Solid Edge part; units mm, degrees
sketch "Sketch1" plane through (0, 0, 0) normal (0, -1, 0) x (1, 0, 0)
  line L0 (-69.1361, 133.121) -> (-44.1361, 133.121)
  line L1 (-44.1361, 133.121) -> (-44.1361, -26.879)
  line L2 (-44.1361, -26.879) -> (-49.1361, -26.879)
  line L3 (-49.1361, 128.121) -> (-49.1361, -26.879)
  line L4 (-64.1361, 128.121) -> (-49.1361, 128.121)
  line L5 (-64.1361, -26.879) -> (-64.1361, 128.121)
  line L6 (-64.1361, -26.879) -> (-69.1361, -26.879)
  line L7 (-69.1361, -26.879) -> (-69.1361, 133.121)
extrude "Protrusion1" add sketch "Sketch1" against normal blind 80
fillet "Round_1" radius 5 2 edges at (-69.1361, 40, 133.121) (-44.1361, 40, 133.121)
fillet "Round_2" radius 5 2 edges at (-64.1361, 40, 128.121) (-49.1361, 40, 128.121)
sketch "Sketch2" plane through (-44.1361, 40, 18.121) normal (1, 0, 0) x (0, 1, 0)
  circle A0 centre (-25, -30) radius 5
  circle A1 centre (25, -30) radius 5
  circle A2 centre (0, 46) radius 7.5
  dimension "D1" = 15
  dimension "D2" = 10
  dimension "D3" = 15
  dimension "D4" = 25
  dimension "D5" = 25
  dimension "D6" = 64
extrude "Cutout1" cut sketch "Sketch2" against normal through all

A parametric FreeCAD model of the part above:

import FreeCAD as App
import Part
import Sketcher


def edges_at(feature, points):
    """Names of the edges that pass closest to the given points."""
    edges = feature.Shape.Edges
    near = lambda p: min(range(len(edges)), key=lambda i: edges[i].distToShape(Part.Vertex(*p))[0])
    return sorted({f"Edge{near(p) + 1}" for p in points})


def add_polygon(sketch, points):
    """Adds a closed chain of lines whose ends are joined by coincident constraints."""
    first, n = sketch.GeometryCount, len(points)
    for a, b in zip(points, points[1:] + points[:1]):
        sketch.addGeometry(Part.LineSegment(App.Vector(*a, 0), App.Vector(*b, 0)), False)
    for i in range(n):
        sketch.addConstraint(Sketcher.Constraint("Coincident", first + i, 2, first + (i + 1) % n, 1))

doc = App.newDocument("Part")
body = doc.addObject("PartDesign::Body", "Body")

# Sketch on XZ plane
sketch1 = body.newObject("Sketcher::SketchObject", "Sketch")
sketch1.AttachmentSupport = (doc.getObject("XZ_Plane"), [""])
sketch1.MapMode = "FlatFace"
add_polygon(sketch1, [(-44, 133), (-69, 133), (-69, -27), (-64, -27), (-64, 128), (-49, 128), (-49, -27), (-44, -27)])  # lines 0-7
sketch1.addConstraint(Sketcher.Constraint("Horizontal", 0))
sketch1.addConstraint(Sketcher.Constraint("Vertical", 1))
sketch1.addConstraint(Sketcher.Constraint("Horizontal", 2))
sketch1.addConstraint(Sketcher.Constraint("Vertical", 3))
sketch1.addConstraint(Sketcher.Constraint("Horizontal", 4))
sketch1.addConstraint(Sketcher.Constraint("Vertical", 5))
sketch1.addConstraint(Sketcher.Constraint("Horizontal", 6))
sketch1.addConstraint(Sketcher.Constraint("Vertical", 7))
sketch1.addConstraint(Sketcher.Constraint("Horizontal", 2, 2, 5, 2))
sketch1.addConstraint(Sketcher.Constraint("Equal", 2, 6))
sketch1.addConstraint(Sketcher.Constraint("DistanceX", 0, 2, 0, 1, 25.0))
sketch1.addConstraint(Sketcher.Constraint("DistanceX", 2, 1, 2, 2, 5.0))
sketch1.addConstraint(Sketcher.Constraint("DistanceY", 1, 2, 1, 1, 160.0))
sketch1.addConstraint(Sketcher.Constraint("DistanceY", 3, 1, 3, 2, 155.0))
sketch1.addConstraint(Sketcher.Constraint("DistanceX", 0, 2, -1, 1, 69.136))
sketch1.addConstraint(Sketcher.Constraint("DistanceY", -1, 1, 0, 2, 133.121))
pad1 = body.newObject("PartDesign::Pad", "Pad")
pad1.Profile = sketch1
pad1.Length = 80
pad1.Reversed = True
doc.recompute()

fillet = body.newObject("PartDesign::Fillet", "Fillet")
fillet.Base = (pad1, edges_at(pad1, [(-69.136, 40, 133.121), (-44.136, 40, 133.121)]))
fillet.Radius = 5
doc.recompute()

fillet2 = body.newObject("PartDesign::Fillet", "Fillet001")
fillet2.Base = (fillet, edges_at(fillet, [(-64.136, 40, 128.121), (-49.136, 40, 128.121)]))
fillet2.Radius = 5

# Sketch on YZ plane
sketch2 = body.newObject("Sketcher::SketchObject", "Sketch001")
sketch2.AttachmentSupport = (doc.getObject("YZ_Plane"), [""])
sketch2.MapMode = "FlatFace"
sketch2.AttachmentOffset = App.Placement(App.Vector(0, 0, -44.1361), App.Rotation())
sketch2.addGeometry(Part.Circle(App.Vector(15, -12, 0), App.Vector(0, 0, 1), 5), False)
sketch2.addGeometry(Part.Circle(App.Vector(65, -12, 0), App.Vector(0, 0, 1), 5), False)
sketch2.addGeometry(Part.Circle(App.Vector(40, 64, 0), App.Vector(0, 0, 1), 8), False)
sketch2.addConstraint(Sketcher.Constraint("Equal", 0, 1))
sketch2.addConstraint(Sketcher.Constraint("Horizontal", 0, 3, 1, 3))
sketch2.addConstraint(Sketcher.Constraint("Diameter", 0, 10.0))
sketch2.addConstraint(Sketcher.Constraint("Diameter", 2, 15.0))
sketch2.addConstraint(Sketcher.Constraint("DistanceX", 0, 3, 2, 3, 25.0))
sketch2.addConstraint(Sketcher.Constraint("DistanceX", 2, 3, 1, 3, 25.0))
sketch2.addConstraint(Sketcher.Constraint("DistanceX", -1, 1, 0, 3, 15.0))
sketch2.addConstraint(Sketcher.Constraint("DistanceY", 0, 3, 2, 3, 76.0))
sketch2.addConstraint(Sketcher.Constraint("DistanceY", 0, 3, -1, 1, 11.879))
pocket1 = body.newObject("PartDesign::Pocket", "Pocket")
pocket1.Profile = sketch2
pocket1.Type = "ThroughAll"

doc.recompute()
